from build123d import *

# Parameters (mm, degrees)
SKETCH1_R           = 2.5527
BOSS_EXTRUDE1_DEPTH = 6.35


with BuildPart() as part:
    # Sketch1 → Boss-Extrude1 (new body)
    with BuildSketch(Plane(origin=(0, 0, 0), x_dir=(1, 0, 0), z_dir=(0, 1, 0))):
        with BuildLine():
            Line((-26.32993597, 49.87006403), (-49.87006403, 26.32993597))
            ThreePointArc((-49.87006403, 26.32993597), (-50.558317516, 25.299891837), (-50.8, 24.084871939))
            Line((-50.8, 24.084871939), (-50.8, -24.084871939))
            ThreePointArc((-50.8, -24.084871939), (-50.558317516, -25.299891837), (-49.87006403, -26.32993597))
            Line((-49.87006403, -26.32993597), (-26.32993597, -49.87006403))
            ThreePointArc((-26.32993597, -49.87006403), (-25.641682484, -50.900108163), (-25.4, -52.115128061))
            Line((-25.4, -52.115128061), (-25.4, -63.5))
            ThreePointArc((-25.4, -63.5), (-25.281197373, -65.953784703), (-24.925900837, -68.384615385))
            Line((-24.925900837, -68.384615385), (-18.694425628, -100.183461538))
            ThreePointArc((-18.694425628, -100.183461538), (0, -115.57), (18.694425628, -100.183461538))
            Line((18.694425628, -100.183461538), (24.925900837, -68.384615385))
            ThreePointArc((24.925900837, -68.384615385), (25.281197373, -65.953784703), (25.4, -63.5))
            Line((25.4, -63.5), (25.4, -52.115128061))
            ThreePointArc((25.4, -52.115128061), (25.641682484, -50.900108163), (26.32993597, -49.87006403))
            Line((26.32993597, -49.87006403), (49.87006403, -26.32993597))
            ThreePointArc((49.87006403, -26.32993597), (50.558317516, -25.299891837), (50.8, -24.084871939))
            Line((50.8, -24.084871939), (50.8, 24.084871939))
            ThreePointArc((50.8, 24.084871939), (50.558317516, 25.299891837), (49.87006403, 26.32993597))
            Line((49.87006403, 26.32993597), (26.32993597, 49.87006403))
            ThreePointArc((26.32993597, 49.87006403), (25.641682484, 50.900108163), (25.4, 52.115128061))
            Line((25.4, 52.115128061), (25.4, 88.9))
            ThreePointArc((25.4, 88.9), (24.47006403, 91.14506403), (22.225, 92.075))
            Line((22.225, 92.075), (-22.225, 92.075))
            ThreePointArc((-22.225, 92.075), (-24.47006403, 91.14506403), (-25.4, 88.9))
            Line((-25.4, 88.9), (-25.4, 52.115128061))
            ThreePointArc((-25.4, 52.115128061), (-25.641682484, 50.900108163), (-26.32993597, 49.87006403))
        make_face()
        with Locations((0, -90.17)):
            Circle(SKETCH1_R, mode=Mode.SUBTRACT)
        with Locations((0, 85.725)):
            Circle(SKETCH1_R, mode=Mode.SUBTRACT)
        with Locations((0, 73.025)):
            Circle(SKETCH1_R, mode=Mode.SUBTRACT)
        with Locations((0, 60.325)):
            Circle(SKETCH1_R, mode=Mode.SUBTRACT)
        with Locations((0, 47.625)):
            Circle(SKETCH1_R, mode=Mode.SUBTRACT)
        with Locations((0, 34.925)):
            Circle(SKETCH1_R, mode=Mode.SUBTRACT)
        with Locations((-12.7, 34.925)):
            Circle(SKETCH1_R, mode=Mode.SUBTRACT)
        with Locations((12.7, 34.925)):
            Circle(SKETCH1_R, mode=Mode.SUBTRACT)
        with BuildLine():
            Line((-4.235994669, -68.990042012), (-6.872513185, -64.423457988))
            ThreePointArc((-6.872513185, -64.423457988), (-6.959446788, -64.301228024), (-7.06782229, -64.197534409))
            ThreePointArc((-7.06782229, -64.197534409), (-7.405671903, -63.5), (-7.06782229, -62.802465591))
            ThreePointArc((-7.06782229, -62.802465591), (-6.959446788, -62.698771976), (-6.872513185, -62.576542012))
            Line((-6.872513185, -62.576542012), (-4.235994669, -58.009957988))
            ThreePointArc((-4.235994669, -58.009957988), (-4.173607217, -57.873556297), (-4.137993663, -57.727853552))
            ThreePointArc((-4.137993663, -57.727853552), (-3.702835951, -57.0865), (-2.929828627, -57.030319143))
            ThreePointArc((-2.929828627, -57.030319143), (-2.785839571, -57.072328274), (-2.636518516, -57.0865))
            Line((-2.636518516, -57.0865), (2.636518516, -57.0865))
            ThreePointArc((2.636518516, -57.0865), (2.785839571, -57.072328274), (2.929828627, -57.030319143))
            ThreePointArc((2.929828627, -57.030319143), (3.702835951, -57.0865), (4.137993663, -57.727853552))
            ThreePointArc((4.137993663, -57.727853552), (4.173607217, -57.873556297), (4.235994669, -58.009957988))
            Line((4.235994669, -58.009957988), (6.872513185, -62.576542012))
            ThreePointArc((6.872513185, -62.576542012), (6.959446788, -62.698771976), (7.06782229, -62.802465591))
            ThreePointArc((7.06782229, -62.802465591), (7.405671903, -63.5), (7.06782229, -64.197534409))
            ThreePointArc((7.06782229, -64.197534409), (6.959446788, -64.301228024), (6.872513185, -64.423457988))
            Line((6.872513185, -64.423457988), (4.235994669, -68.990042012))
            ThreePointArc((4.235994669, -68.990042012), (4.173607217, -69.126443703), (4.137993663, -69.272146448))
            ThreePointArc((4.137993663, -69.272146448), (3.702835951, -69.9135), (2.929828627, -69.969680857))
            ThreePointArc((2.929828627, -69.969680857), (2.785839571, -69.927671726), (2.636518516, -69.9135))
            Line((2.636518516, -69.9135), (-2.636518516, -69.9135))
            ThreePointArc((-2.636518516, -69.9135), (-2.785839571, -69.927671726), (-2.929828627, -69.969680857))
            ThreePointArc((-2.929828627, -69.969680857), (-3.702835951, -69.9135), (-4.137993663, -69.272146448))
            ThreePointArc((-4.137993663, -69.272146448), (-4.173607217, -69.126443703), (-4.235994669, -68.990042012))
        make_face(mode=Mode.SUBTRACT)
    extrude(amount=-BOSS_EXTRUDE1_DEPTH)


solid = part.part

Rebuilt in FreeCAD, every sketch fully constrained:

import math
import FreeCAD as App
import Part
import Sketcher
Q = App.Units.Quantity

doc = App.newDocument("Part")
body = doc.addObject("PartDesign::Body", "Body")

sketch1 = body.newObject("Sketcher::SketchObject", "Sketch")
sketch1.AttachmentSupport = (doc.getObject("XZ_Plane"), [""])
sketch1.MapMode = "FlatFace"
sketch1.addGeometry([
    Part.LineSegment(App.Vector(-26.33, -49.87, 0), App.Vector(-49.87, -26.33, 0)),
    Part.ArcOfCircle(Part.Circle(App.Vector(-47.63, -24.08, 0), App.Vector(0, 0, 1), 3.17), math.radians(180), math.radians(225)),
    Part.LineSegment(App.Vector(-50.8, -24.08, 0), App.Vector(-50.8, 24.08, 0)),
    Part.ArcOfCircle(Part.Circle(App.Vector(-47.63, 24.08, 0), App.Vector(0, 0, 1), 3.17), math.radians(135), math.radians(180)),
    Part.LineSegment(App.Vector(-49.87, 26.33, 0), App.Vector(-26.33, 49.87, 0)),
    Part.ArcOfCircle(Part.Circle(App.Vector(-28.57, 52.12, 0), App.Vector(0, 0, 1), 3.17), math.radians(-45), math.radians(0)),
    Part.LineSegment(App.Vector(-25.4, 52.12, 0), App.Vector(-25.4, 63.5, 0)),
    Part.ArcOfCircle(Part.Circle(App.Vector(0, 63.5, 0), App.Vector(0, 0, 1), 25.4), math.radians(168.91), math.radians(180)),
    Part.LineSegment(App.Vector(-24.93, 68.38, 0), App.Vector(-18.69, 100.18, 0)),
    Part.ArcOfCircle(Part.Circle(App.Vector(0, 96.52, 0), App.Vector(0, 0, 1), 19.05), math.radians(11), math.radians(169)),
    Part.LineSegment(App.Vector(18.69, 100.18, 0), App.Vector(24.93, 68.38, 0)),
    Part.ArcOfCircle(Part.Circle(App.Vector(0, 63.5, 0), App.Vector(0, 0, 1), 25.4), math.radians(0), math.radians(11.09)),
    Part.LineSegment(App.Vector(25.4, 63.5, 0), App.Vector(25.4, 52.12, 0)),
    Part.ArcOfCircle(Part.Circle(App.Vector(28.57, 52.12, 0), App.Vector(0, 0, 1), 3.17), math.radians(180), math.radians(225)),
    Part.LineSegment(App.Vector(26.33, 49.87, 0), App.Vector(49.87, 26.33, 0)),
    Part.ArcOfCircle(Part.Circle(App.Vector(47.63, 24.08, 0), App.Vector(0, 0, 1), 3.17), math.radians(0), math.radians(45)),
    Part.LineSegment(App.Vector(50.8, 24.08, 0), App.Vector(50.8, -24.08, 0)),
    Part.ArcOfCircle(Part.Circle(App.Vector(47.63, -24.08, 0), App.Vector(0, 0, 1), 3.17), math.radians(-45), math.radians(0)),
    Part.LineSegment(App.Vector(49.87, -26.33, 0), App.Vector(26.33, -49.87, 0)),
    Part.ArcOfCircle(Part.Circle(App.Vector(28.57, -52.12, 0), App.Vector(0, 0, 1), 3.17), math.radians(135), math.radians(180)),
    Part.LineSegment(App.Vector(25.4, -52.12, 0), App.Vector(25.4, -88.9, 0)),
    Part.ArcOfCircle(Part.Circle(App.Vector(22.22, -88.9, 0), App.Vector(0, 0, 1), 3.18), math.radians(-90), math.radians(0)),
    Part.LineSegment(App.Vector(22.23, -92.08, 0), App.Vector(-22.23, -92.08, 0)),
    Part.ArcOfCircle(Part.Circle(App.Vector(-22.22, -88.9, 0), App.Vector(0, 0, 1), 3.18), math.radians(-180), math.radians(-90)),
    Part.LineSegment(App.Vector(-25.4, -88.9, 0), App.Vector(-25.4, -52.12, 0)),
    Part.ArcOfCircle(Part.Circle(App.Vector(-28.57, -52.12, 0), App.Vector(0, 0, 1), 3.17), math.radians(0), math.radians(45)),
    Part.ArcOfCircle(Part.Circle(App.Vector(-4.92, 69.39, 0), App.Vector(0, 0, 1), 0.79), math.radians(-30), math.radians(-8)),
    Part.LineSegment(App.Vector(-4.24, 68.99, 0), App.Vector(-6.87, 64.42, 0)),
    Part.ArcOfCircle(Part.Circle(App.Vector(-7.56, 64.82, 0), App.Vector(0, 0, 1), 0.79), math.radians(-52), math.radians(-30)),
    Part.ArcOfCircle(Part.Circle(App.Vector(-6.52, 63.5, 0), App.Vector(0, 0, 1), 0.89), math.radians(128), math.radians(232)),
    Part.ArcOfCircle(Part.Circle(App.Vector(-7.56, 62.18, 0), App.Vector(0, 0, 1), 0.79), math.radians(30), math.radians(52)),
    Part.LineSegment(App.Vector(-6.87, 62.58, 0), App.Vector(-4.24, 58.01, 0)),
    Part.ArcOfCircle(Part.Circle(App.Vector(-4.92, 57.61, 0), App.Vector(0, 0, 1), 0.79), math.radians(8), math.radians(30)),
    Part.ArcOfCircle(Part.Circle(App.Vector(-3.26, 57.86, 0), App.Vector(0, 0, 1), 0.89), math.radians(-172), math.radians(-68)),
    Part.ArcOfCircle(Part.Circle(App.Vector(-2.64, 56.29, 0), App.Vector(0, 0, 1), 0.79), math.radians(90), math.radians(112)),
    Part.LineSegment(App.Vector(-2.64, 57.09, 0), App.Vector(2.64, 57.09, 0)),
    Part.ArcOfCircle(Part.Circle(App.Vector(2.64, 56.29, 0), App.Vector(0, 0, 1), 0.79), math.radians(68), math.radians(90)),
    Part.ArcOfCircle(Part.Circle(App.Vector(3.26, 57.86, 0), App.Vector(0, 0, 1), 0.89), math.radians(-112), math.radians(-8)),
    Part.ArcOfCircle(Part.Circle(App.Vector(4.92, 57.61, 0), App.Vector(0, 0, 1), 0.79), math.radians(150), math.radians(172)),
    Part.LineSegment(App.Vector(4.24, 58.01, 0), App.Vector(6.87, 62.58, 0)),
    Part.ArcOfCircle(Part.Circle(App.Vector(7.56, 62.18, 0), App.Vector(0, 0, 1), 0.79), math.radians(128), math.radians(150)),
    Part.ArcOfCircle(Part.Circle(App.Vector(6.52, 63.5, 0), App.Vector(0, 0, 1), 0.89), math.radians(-52), math.radians(52)),
    Part.ArcOfCircle(Part.Circle(App.Vector(7.56, 64.82, 0), App.Vector(0, 0, 1), 0.79), math.radians(-150), math.radians(-128)),
    Part.LineSegment(App.Vector(6.87, 64.42, 0), App.Vector(4.24, 68.99, 0)),
    Part.ArcOfCircle(Part.Circle(App.Vector(4.92, 69.39, 0), App.Vector(0, 0, 1), 0.79), math.radians(-172), math.radians(-150)),
    Part.ArcOfCircle(Part.Circle(App.Vector(3.26, 69.14, 0), App.Vector(0, 0, 1), 0.89), math.radians(8), math.radians(112)),
    Part.ArcOfCircle(Part.Circle(App.Vector(2.64, 70.71, 0), App.Vector(0, 0, 1), 0.79), math.radians(-90), math.radians(-68)),
    Part.LineSegment(App.Vector(2.64, 69.91, 0), App.Vector(-2.64, 69.91, 0)),
    Part.ArcOfCircle(Part.Circle(App.Vector(-2.64, 70.71, 0), App.Vector(0, 0, 1), 0.79), math.radians(-112), math.radians(-90)),
    Part.ArcOfCircle(Part.Circle(App.Vector(-3.26, 69.14, 0), App.Vector(0, 0, 1), 0.89), math.radians(68), math.radians(172)),
    Part.Circle(App.Vector(0, 90.17, 0), App.Vector(0, 0, 1), 2.55),
    Part.Circle(App.Vector(-12.7, -34.92, 0), App.Vector(0, 0, 1), 2.55),
    Part.Circle(App.Vector(0, -34.92, 0), App.Vector(0, 0, 1), 2.55),
    Part.Circle(App.Vector(12.7, -34.92, 0), App.Vector(0, 0, 1), 2.55),
    Part.Circle(App.Vector(0, -47.62, 0), App.Vector(0, 0, 1), 2.55),
    Part.Circle(App.Vector(0, -60.33, 0), App.Vector(0, 0, 1), 2.55),
    Part.Circle(App.Vector(0, -73.03, 0), App.Vector(0, 0, 1), 2.55),
    Part.Circle(App.Vector(0, -85.72, 0), App.Vector(0, 0, 1), 2.55),
], False)
sketch1.addConstraint([
    Sketcher.Constraint("Tangent", 0, 2, 1, 2),
    Sketcher.Constraint("Tangent", 1, 1, 2, 1),
    Sketcher.Constraint("Tangent", 2, 2, 3, 2),
    Sketcher.Constraint("Tangent", 3, 1, 4, 1),
    Sketcher.Constraint("Tangent", 4, 2, 5, 1),
    Sketcher.Constraint("Tangent", 5, 2, 6, 1),
    Sketcher.Constraint("Tangent", 6, 2, 7, 2),
    Sketcher.Constraint("Tangent", 7, 1, 8, 1),
    Sketcher.Constraint("Tangent", 8, 2, 9, 2),
    Sketcher.Constraint("Tangent", 9, 1, 10, 1),
    Sketcher.Constraint("Tangent", 10, 2, 11, 2),
    Sketcher.Constraint("Tangent", 11, 1, 12, 1),
    Sketcher.Constraint("Tangent", 12, 2, 13, 1),
    Sketcher.Constraint("Tangent", 13, 2, 14, 1),
    Sketcher.Constraint("Tangent", 14, 2, 15, 2),
    Sketcher.Constraint("Tangent", 15, 1, 16, 1),
    Sketcher.Constraint("Tangent", 16, 2, 17, 2),
    Sketcher.Constraint("Tangent", 17, 1, 18, 1),
    Sketcher.Constraint("Tangent", 18, 2, 19, 1),
    Sketcher.Constraint("Tangent", 19, 2, 20, 1),
    Sketcher.Constraint("Tangent", 20, 2, 21, 2),
    Sketcher.Constraint("Tangent", 21, 1, 22, 1),
    Sketcher.Constraint("Tangent", 22, 2, 23, 2),
    Sketcher.Constraint("Tangent", 23, 1, 24, 1),
    Sketcher.Constraint("Tangent", 24, 2, 25, 1),
    Sketcher.Constraint("Tangent", 25, 2, 0, 1),
    Sketcher.Constraint("Tangent", 26, 1, 27, 1),
    Sketcher.Constraint("Tangent", 27, 2, 28, 2),
    Sketcher.Constraint("Tangent", 28, 1, 29, 1),
    Sketcher.Constraint("Tangent", 29, 2, 30, 2),
    Sketcher.Constraint("Tangent", 30, 1, 31, 1),
    Sketcher.Constraint("Tangent", 31, 2, 32, 2),
    Sketcher.Constraint("Tangent", 32, 1, 33, 1),
    Sketcher.Constraint("Tangent", 33, 2, 34, 2),
    Sketcher.Constraint("Tangent", 34, 1, 35, 1),
    Sketcher.Constraint("Tangent", 35, 2, 36, 2),
    Sketcher.Constraint("Tangent", 36, 1, 37, 1),
    Sketcher.Constraint("Tangent", 37, 2, 38, 2),
    Sketcher.Constraint("Tangent", 38, 1, 39, 1),
    Sketcher.Constraint("Tangent", 39, 2, 40, 2),
    Sketcher.Constraint("Tangent", 40, 1, 41, 1),
    Sketcher.Constraint("Tangent", 41, 2, 42, 2),
    Sketcher.Constraint("Tangent", 42, 1, 43, 1),
    Sketcher.Constraint("Tangent", 43, 2, 44, 2),
    Sketcher.Constraint("Tangent", 44, 1, 45, 1),
    Sketcher.Constraint("Tangent", 45, 2, 46, 2),
    Sketcher.Constraint("Tangent", 46, 1, 47, 1),
    Sketcher.Constraint("Tangent", 47, 2, 48, 2),
    Sketcher.Constraint("Tangent", 48, 1, 49, 1),
    Sketcher.Constraint("Tangent", 49, 2, 26, 2),
    Sketcher.Constraint("Vertical", 2),
    Sketcher.Constraint("Vertical", 6),
    Sketcher.Constraint("Vertical", 12),
    Sketcher.Constraint("Vertical", 16),
    Sketcher.Constraint("Vertical", 20),
    Sketcher.Constraint("Horizontal", 22),
    Sketcher.Constraint("Vertical", 24),
    Sketcher.Constraint("Horizontal", 35),
    Sketcher.Constraint("Horizontal", 47),
    Sketcher.Constraint("Coincident", 11, 3, 7, 3),
    Sketcher.Constraint("Equal", 1, 3),
    Sketcher.Constraint("Equal", 3, 5),
    Sketcher.Constraint("Equal", 7, 11),
    Sketcher.Constraint("Equal", 5, 13),
    Sketcher.Constraint("Equal", 13, 15),
    Sketcher.Constraint("Equal", 15, 17),
    Sketcher.Constraint("Equal", 17, 19),
    Sketcher.Constraint("Equal", 19, 21),
    Sketcher.Constraint("Equal", 21, 23),
    Sketcher.Constraint("Equal", 23, 25),
    Sketcher.Constraint("Equal", 26, 28),
    Sketcher.Constraint("Equal", 28, 30),
    Sketcher.Constraint("Equal", 30, 32),
    Sketcher.Constraint("Equal", 29, 33),
    Sketcher.Constraint("Equal", 32, 34),
    Sketcher.Constraint("Equal", 34, 36),
    Sketcher.Constraint("Equal", 33, 37),
    Sketcher.Constraint("Equal", 36, 38),
    Sketcher.Constraint("Equal", 38, 40),
    Sketcher.Constraint("Equal", 37, 41),
    Sketcher.Constraint("Equal", 40, 42),
    Sketcher.Constraint("Equal", 42, 44),
    Sketcher.Constraint("Equal", 41, 45),
    Sketcher.Constraint("Equal", 44, 46),
    Sketcher.Constraint("Equal", 46, 48),
    Sketcher.Constraint("Equal", 45, 49),
    Sketcher.Constraint("Equal", 50, 51),
    Sketcher.Constraint("Equal", 51, 52),
    Sketcher.Constraint("Equal", 52, 53),
    Sketcher.Constraint("Equal", 53, 54),
    Sketcher.Constraint("Equal", 54, 55),
    Sketcher.Constraint("Equal", 55, 56),
    Sketcher.Constraint("Equal", 56, 57),
    Sketcher.Constraint("Symmetric", 1, 3, 15, 3, -1, 1),
    Sketcher.Constraint("Symmetric", 5, 3, 19, 3, -1, 1),
    Sketcher.Constraint("Symmetric", 13, 3, 25, 3, -1, 1),
    Sketcher.Constraint("Symmetric", 5, 3, 13, 3, -2),
    Sketcher.Constraint("Symmetric", 33, 3, 37, 3, -2),
    Sketcher.Constraint("Symmetric", 30, 3, 40, 3, -2),
    Sketcher.Constraint("Symmetric", 28, 3, 42, 3, -2),
    Sketcher.Constraint("Symmetric", 26, 3, 44, 3, -2),
    Sketcher.Constraint("Symmetric", 51, 3, 53, 3, -2),
    Sketcher.Constraint("PointOnObject", 9, 3, -2),
    Sketcher.Constraint("PointOnObject", 50, 3, -2),
    Sketcher.Constraint("PointOnObject", 52, 3, -2),
    Sketcher.Constraint("PointOnObject", 54, 3, -2),
    Sketcher.Constraint("PointOnObject", 55, 3, -2),
    Sketcher.Constraint("PointOnObject", 56, 3, -2),
    Sketcher.Constraint("PointOnObject", 57, 3, -2),
    Sketcher.Constraint("Perpendicular", 0, 4),
    Sketcher.Constraint("Perpendicular", 14, 18),
    Sketcher.Constraint("Parallel", 27, 39),
    Sketcher.Constraint("Parallel", 31, 43),
    Sketcher.Constraint("Horizontal", 3, 3, 15, 3),
    Sketcher.Constraint("Horizontal", 11, 3, 29, 3),
    Sketcher.Constraint("Horizontal", 45, 3, 49, 3),
    Sketcher.Constraint("Horizontal", 51, 3, 52, 3),
    Sketcher.Constraint("Vertical", 28, 3, 30, 3),
    Sketcher.Constraint("Vertical", 26, 3, 32, 3),
    Sketcher.Constraint("Vertical", 37, 3, 45, 3),
    Sketcher.Constraint("Vertical", 36, 3, 46, 3),
    Sketcher.Constraint("Radius", 7, Q("1 in")),
    Sketcher.Constraint("Radius", 9, Q("0.75 in")),
    Sketcher.Constraint("Diameter", 50, Q("0.201 in")),
    Sketcher.Constraint("DistanceX", 1, 1, -1, 1, Q("2 in")),
    Sketcher.Constraint("Angle", 27, Q("-120 deg")),
    Sketcher.Constraint("Radius", 1, Q("0.125 in")),
    Sketcher.Constraint("Radius", 26, Q("0.03125 in")),
    Sketcher.Constraint("Radius", 29, Q("0.035 in")),
    Sketcher.Constraint("DistanceY", -1, 1, 7, 3, Q("2.5 in")),
    Sketcher.Constraint("DistanceY", -1, 1, 9, 3, Q("3.8 in")),
    Sketcher.Constraint("DistanceY", 21, 3, -1, 1, Q("3.5 in")),
    Sketcher.Constraint("DistanceX", 51, 3, -1, 1, Q("0.5 in")),
    Sketcher.Constraint("DistanceY", -1, 1, 50, 3, Q("3.55 in")),
    Sketcher.Constraint("DistanceX", 35, 1, 35, 2, Q("0.2075999 in")),
    Sketcher.Constraint("DistanceY", 51, 3, -1, 1, Q("1.375 in")),
    Sketcher.Constraint("DistanceY", 54, 3, -1, 1, Q("1.875 in")),
    Sketcher.Constraint("DistanceY", 55, 3, -1, 1, Q("2.375 in")),
    Sketcher.Constraint("DistanceY", 56, 3, -1, 1, Q("2.875 in")),
    Sketcher.Constraint("DistanceY", 57, 3, -1, 1, Q("3.375 in")),
    Sketcher.Constraint("Distance", 27, Q("0.2075999 in")),
    Sketcher.Constraint("DistanceY", -1, 1, 34, 1, Q("2.2475 in")),
    Sketcher.Constraint("DistanceY", 6, 1, 6, 2, 11.384872),
    Sketcher.Constraint("DistanceX", 28, 3, -1, 1, 7.559921),
    Sketcher.Constraint("DistanceX", 29, 3, -1, 1, 6.516672),
])
pad1 = body.newObject("PartDesign::Pad", "Pad")
pad1.Profile = sketch1
pad1.Length = Q("0.25 in")

doc.recompute()
